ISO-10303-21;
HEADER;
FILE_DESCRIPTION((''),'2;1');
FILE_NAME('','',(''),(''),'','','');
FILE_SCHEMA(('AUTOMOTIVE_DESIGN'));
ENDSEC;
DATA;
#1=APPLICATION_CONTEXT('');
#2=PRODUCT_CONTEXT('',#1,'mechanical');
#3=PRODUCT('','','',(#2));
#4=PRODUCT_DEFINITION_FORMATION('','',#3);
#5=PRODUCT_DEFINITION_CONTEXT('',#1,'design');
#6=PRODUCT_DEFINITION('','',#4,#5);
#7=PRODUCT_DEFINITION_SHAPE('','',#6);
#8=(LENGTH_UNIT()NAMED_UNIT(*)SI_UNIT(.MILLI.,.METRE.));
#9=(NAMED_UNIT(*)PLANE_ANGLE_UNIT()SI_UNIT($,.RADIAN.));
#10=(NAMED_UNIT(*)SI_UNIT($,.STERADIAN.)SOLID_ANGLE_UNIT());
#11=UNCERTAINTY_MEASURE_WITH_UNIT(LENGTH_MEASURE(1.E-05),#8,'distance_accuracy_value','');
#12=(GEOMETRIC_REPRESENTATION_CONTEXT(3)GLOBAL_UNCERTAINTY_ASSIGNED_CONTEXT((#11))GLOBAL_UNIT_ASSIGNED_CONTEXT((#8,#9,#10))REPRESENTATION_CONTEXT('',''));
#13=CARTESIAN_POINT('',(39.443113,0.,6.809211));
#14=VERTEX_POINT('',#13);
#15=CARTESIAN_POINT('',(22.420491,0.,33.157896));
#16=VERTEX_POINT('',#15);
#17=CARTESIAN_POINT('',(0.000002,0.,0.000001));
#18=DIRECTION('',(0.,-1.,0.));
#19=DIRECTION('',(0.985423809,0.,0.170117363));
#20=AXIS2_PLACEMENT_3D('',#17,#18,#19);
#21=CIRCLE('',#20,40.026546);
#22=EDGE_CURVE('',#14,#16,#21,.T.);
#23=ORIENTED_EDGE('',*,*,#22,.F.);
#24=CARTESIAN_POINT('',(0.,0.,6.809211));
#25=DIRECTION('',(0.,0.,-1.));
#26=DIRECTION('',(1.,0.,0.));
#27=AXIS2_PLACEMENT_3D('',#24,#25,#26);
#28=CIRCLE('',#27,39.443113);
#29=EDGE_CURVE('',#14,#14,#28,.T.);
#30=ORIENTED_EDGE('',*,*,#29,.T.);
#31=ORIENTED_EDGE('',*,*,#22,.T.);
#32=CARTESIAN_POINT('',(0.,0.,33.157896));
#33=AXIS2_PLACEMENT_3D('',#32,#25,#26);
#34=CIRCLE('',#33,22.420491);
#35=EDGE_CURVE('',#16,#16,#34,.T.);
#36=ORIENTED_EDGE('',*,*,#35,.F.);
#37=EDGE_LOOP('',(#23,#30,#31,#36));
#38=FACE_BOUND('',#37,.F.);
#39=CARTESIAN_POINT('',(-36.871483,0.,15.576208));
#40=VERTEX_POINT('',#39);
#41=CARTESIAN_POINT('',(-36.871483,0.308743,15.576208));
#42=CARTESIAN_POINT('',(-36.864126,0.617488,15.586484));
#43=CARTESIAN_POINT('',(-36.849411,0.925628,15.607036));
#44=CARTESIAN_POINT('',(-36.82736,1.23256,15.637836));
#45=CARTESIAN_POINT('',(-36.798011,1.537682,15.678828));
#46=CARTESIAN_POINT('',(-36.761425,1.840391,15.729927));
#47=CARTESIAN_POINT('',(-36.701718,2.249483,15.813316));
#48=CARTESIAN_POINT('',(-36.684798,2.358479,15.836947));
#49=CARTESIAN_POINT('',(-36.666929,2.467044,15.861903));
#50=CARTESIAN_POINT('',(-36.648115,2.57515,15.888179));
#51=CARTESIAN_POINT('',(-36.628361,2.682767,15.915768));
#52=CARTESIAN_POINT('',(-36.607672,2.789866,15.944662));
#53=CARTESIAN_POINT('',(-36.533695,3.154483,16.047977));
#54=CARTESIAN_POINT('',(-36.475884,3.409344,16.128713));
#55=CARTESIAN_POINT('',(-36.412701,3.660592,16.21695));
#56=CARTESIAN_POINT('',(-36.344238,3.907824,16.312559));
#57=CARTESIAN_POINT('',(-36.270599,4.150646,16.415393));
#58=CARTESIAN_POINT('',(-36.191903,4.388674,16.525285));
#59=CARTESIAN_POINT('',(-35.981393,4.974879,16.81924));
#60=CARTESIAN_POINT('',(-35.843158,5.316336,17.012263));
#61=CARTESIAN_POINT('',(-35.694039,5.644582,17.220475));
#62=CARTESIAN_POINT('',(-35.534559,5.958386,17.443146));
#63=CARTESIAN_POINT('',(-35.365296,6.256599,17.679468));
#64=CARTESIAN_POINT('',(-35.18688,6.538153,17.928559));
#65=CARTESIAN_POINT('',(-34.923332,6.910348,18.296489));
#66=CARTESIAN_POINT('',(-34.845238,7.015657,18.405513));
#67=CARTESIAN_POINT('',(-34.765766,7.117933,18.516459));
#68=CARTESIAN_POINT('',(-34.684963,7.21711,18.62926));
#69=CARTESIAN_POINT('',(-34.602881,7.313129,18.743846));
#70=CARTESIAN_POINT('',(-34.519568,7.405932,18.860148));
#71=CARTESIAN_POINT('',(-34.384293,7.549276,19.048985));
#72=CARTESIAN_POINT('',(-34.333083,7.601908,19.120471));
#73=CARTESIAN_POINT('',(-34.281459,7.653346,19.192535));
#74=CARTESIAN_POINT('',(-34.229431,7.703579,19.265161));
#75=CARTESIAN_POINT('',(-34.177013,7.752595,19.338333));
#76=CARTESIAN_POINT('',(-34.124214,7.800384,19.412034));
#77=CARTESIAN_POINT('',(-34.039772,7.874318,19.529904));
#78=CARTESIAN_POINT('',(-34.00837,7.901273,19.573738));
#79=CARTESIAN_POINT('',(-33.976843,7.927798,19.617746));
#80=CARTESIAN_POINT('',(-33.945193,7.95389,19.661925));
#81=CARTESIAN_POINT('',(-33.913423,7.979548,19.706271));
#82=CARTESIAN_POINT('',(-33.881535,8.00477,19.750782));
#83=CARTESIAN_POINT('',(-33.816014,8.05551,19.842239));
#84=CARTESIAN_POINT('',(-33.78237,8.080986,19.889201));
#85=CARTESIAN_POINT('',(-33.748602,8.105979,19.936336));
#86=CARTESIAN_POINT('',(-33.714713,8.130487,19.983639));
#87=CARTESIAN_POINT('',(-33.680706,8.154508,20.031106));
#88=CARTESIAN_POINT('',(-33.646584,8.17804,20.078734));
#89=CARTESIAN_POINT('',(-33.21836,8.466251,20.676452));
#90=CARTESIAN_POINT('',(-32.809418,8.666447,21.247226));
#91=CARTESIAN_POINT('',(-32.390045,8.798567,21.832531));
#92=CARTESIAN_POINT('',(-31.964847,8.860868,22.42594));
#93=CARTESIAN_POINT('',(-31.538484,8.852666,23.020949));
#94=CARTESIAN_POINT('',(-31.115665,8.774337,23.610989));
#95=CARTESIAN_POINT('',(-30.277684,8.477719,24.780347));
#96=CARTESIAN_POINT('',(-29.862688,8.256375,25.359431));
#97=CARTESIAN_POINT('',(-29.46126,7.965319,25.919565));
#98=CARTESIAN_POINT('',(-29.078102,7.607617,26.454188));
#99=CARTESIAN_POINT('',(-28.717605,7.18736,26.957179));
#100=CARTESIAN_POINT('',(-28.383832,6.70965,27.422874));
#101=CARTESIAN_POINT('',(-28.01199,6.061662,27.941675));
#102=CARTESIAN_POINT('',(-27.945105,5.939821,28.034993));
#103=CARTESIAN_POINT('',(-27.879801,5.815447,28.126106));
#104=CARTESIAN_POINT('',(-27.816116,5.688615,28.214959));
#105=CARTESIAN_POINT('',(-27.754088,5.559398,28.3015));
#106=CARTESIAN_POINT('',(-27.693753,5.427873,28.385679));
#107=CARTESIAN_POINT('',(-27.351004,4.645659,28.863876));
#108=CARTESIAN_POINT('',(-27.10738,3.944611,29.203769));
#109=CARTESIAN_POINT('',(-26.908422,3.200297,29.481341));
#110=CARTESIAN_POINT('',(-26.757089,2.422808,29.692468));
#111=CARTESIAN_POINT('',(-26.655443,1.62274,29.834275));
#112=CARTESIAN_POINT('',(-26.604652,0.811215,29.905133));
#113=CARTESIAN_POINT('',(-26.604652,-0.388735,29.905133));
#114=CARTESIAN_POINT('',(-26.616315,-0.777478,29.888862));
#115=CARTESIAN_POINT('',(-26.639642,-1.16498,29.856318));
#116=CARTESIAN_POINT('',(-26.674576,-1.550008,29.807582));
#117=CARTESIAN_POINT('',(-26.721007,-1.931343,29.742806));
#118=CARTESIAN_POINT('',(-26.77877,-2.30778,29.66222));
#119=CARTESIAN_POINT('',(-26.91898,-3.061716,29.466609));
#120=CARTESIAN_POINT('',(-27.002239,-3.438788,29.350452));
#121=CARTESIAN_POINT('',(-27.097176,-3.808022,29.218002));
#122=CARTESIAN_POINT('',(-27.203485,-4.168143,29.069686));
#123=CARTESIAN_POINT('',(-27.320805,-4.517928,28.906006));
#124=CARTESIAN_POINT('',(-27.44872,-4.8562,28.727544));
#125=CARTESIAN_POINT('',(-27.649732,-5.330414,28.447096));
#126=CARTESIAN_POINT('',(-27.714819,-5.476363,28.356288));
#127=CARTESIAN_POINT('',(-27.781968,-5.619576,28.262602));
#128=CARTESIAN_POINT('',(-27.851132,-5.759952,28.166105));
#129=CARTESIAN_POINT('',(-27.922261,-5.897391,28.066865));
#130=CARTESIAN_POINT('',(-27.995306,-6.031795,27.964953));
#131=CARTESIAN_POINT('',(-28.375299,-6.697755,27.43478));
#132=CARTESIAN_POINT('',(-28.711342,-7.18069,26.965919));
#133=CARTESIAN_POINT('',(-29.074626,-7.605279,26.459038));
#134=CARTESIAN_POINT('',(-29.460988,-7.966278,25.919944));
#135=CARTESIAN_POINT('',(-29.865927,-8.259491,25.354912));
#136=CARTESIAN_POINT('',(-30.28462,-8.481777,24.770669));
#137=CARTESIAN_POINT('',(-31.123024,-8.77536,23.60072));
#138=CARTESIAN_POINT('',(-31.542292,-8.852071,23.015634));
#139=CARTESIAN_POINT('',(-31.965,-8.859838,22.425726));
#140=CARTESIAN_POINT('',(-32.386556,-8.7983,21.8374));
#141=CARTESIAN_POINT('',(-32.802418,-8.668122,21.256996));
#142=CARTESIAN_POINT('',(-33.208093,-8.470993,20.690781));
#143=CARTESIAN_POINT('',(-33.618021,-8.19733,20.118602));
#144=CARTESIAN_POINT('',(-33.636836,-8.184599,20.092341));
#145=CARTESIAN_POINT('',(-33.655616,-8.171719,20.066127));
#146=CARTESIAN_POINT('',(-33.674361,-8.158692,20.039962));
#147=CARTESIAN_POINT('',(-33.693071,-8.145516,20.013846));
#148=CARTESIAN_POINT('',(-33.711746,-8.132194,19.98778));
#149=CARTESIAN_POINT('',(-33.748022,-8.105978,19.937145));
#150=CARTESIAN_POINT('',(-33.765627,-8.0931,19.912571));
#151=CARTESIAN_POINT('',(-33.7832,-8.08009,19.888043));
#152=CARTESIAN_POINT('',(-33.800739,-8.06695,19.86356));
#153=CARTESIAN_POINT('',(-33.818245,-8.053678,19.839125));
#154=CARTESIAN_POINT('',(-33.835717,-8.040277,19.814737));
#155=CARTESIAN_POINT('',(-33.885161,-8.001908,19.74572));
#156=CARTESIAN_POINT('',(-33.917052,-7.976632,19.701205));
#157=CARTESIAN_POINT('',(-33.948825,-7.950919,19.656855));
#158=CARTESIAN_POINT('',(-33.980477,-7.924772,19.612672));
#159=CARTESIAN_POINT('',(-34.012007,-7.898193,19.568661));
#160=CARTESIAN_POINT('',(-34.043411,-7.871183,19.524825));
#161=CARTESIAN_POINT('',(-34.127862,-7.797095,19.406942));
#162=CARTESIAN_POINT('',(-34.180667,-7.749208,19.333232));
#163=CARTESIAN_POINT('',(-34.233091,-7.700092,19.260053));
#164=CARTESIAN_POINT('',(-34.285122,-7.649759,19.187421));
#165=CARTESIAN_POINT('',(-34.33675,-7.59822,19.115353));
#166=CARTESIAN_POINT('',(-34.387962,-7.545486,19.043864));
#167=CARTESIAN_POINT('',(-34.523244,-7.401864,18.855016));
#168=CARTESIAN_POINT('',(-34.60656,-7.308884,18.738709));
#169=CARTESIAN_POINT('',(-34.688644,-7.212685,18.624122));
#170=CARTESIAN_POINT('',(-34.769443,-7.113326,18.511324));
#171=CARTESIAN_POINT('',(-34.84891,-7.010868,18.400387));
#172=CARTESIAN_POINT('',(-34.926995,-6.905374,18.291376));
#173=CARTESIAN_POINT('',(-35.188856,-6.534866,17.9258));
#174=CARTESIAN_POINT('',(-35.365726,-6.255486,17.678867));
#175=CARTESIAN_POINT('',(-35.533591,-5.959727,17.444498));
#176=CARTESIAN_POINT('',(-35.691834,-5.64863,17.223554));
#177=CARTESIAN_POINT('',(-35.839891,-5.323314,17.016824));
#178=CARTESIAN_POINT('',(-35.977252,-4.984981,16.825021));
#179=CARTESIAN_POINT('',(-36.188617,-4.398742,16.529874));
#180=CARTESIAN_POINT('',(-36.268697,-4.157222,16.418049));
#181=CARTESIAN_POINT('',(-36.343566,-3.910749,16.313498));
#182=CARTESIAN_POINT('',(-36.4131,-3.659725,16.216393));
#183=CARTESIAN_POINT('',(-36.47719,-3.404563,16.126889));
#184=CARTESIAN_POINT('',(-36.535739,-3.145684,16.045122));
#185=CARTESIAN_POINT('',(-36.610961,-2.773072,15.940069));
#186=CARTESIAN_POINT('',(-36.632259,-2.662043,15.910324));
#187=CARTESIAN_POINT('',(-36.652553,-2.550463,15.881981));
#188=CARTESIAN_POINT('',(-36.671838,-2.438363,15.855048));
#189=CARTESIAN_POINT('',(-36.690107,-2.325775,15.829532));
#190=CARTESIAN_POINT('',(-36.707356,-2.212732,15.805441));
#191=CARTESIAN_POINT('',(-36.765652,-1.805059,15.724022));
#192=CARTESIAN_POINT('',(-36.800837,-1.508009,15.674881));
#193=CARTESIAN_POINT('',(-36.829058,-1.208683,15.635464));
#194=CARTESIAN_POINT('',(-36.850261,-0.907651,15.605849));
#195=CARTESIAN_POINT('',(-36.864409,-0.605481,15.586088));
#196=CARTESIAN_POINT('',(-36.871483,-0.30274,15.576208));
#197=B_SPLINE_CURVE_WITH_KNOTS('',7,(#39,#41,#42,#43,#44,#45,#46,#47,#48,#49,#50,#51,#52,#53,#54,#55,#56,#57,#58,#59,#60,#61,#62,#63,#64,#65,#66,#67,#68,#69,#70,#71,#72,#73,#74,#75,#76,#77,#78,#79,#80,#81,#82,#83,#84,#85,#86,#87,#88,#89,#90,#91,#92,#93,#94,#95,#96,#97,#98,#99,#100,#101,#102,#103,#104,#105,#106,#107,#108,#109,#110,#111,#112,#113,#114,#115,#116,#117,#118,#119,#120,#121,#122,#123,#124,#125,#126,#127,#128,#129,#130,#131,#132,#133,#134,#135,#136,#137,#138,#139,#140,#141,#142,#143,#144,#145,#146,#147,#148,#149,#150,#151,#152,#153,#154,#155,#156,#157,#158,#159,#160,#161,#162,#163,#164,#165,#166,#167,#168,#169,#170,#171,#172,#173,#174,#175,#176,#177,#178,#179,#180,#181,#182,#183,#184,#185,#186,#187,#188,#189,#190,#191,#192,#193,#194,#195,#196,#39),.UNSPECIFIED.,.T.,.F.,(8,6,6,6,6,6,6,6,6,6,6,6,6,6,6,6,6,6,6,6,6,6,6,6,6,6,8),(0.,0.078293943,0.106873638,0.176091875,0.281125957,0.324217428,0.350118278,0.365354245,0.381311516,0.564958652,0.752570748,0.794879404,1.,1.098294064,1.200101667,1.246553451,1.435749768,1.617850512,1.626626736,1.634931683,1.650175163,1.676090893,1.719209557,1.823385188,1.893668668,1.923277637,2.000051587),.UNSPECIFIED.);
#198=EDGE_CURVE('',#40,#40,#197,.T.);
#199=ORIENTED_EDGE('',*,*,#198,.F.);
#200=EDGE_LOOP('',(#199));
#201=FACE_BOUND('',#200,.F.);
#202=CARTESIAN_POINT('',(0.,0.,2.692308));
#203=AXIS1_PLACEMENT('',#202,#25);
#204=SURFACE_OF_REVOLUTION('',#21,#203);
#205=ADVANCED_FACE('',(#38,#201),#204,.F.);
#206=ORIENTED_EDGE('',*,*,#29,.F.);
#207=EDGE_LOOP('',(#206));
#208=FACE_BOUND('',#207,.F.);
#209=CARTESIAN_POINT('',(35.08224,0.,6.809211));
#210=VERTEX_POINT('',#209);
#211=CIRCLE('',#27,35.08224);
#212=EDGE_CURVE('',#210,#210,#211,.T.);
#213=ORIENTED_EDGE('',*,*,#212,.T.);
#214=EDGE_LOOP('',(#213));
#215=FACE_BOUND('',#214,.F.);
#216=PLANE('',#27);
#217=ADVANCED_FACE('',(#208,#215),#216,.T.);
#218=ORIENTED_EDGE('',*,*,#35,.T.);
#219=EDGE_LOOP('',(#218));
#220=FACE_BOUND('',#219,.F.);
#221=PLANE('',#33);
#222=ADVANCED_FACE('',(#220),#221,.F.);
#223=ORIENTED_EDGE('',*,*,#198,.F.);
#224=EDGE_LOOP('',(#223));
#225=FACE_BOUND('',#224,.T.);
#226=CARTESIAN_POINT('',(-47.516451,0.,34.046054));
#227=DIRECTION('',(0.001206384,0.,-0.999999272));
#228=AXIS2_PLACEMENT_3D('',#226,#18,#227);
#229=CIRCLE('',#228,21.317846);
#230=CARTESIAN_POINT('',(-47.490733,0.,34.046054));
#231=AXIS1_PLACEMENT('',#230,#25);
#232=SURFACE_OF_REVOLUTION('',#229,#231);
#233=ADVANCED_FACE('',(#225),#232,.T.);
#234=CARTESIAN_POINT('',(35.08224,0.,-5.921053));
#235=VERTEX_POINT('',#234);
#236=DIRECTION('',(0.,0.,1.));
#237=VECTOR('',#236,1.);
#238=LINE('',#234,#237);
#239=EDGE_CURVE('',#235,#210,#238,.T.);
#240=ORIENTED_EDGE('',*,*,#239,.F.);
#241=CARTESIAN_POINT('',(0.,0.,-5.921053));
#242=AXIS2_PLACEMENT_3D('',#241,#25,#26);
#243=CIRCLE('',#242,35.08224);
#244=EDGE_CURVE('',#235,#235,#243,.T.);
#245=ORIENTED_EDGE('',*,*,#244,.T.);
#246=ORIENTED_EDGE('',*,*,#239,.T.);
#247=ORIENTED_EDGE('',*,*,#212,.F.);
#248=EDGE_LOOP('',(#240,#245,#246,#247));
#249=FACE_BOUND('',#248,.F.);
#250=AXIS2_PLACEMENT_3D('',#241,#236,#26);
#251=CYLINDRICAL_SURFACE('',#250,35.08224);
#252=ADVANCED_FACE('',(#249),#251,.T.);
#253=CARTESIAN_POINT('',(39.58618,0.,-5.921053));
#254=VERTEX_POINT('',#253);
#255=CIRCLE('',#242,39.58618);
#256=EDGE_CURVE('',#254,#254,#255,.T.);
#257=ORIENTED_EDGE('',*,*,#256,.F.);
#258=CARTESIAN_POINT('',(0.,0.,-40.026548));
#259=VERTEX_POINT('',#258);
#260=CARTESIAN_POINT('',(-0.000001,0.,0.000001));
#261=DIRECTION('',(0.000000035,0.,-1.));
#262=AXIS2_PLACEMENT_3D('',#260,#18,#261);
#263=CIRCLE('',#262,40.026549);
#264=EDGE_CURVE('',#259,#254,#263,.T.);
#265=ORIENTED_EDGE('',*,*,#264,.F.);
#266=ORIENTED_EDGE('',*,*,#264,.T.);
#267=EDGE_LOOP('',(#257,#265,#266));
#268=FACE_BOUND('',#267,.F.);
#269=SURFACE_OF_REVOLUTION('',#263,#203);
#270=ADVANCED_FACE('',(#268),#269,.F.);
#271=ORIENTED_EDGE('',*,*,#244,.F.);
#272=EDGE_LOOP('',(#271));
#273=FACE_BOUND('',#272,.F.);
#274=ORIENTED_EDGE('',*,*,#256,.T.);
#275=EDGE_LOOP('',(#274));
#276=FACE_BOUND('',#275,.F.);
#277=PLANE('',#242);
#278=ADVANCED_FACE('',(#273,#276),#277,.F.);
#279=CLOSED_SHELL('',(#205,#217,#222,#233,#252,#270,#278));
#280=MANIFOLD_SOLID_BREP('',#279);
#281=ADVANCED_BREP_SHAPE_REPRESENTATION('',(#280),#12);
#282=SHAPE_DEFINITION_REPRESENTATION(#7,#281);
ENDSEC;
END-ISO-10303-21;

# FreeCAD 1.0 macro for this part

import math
import FreeCAD as App
import Part
import Sketcher
from FreeCAD import Vector
Q = App.Units.Quantity

doc = App.newDocument("Part")
params = doc.addObject("Spreadsheet::Sheet", "Params")
for row, (alias, value) in enumerate([
    ("revolution_angle", "360 deg"),
    ("groove_angle", "360 deg"),
], start=1):
    params.set(f"A{row}", alias)
    params.set(f"B{row}", "=" + value)
    params.setAlias(f"B{row}", alias)

body = doc.addObject("PartDesign::Body", "Body")

# Sketch on XZ plane
sketch1 = body.newObject("Sketcher::SketchObject", "Sketch")
sketch1.AttachmentSupport = (doc.getObject("XZ_Plane"), [""])
sketch1.MapMode = "FlatFace"
sketch1.addGeometry(Part.LineSegment(Vector(0, 33.157896, 0), Vector(0, -40.026548, 0)), False)
sketch1.addGeometry(Part.ArcOfCircle(Part.Circle(Vector(-0.000001, 0.000001, 0), Vector(0, 0, 1), 40.026549), math.radians(-89.999998), math.radians(-8.50688)), False)
sketch1.addGeometry(Part.LineSegment(Vector(39.58618, -5.921053, 0), Vector(35.08224, -5.921053, 0)), False)
sketch1.addGeometry(Part.LineSegment(Vector(35.08224, -5.921053, 0), Vector(35.08224, 6.809211, 0)), False)
sketch1.addGeometry(Part.LineSegment(Vector(35.08224, 6.809211, 0), Vector(39.443113, 6.809211, 0)), False)
sketch1.addGeometry(Part.ArcOfCircle(Part.Circle(Vector(0.000002, 0.000001, 0), Vector(0, 0, 1), 40.026546), math.radians(9.794643), math.radians(55.934486)), False)
sketch1.addGeometry(Part.LineSegment(Vector(22.420491, 33.157896, 0), Vector(0, 33.157896, 0)), False)
sketch1.addConstraint(Sketcher.Constraint("Coincident", 0, 2, 1, 1))
sketch1.addConstraint(Sketcher.Constraint("Coincident", 1, 2, 2, 1))
sketch1.addConstraint(Sketcher.Constraint("Coincident", 2, 2, 3, 1))
sketch1.addConstraint(Sketcher.Constraint("Coincident", 3, 2, 4, 1))
sketch1.addConstraint(Sketcher.Constraint("Coincident", 4, 2, 5, 1))
sketch1.addConstraint(Sketcher.Constraint("Coincident", 5, 2, 6, 1))
sketch1.addConstraint(Sketcher.Constraint("Coincident", 6, 2, 0, 1))
sketch1.addConstraint(Sketcher.Constraint("Vertical", 0))
sketch1.addConstraint(Sketcher.Constraint("Horizontal", 2))
sketch1.addConstraint(Sketcher.Constraint("Vertical", 3))
sketch1.addConstraint(Sketcher.Constraint("Horizontal", 4))
sketch1.addConstraint(Sketcher.Constraint("Horizontal", 6))
sketch1.addConstraint(Sketcher.Constraint("Coincident", 1, 3, -1, 1))
sketch1.addConstraint(Sketcher.Constraint("Coincident", 5, 3, -1, 1))
sketch1.addConstraint(Sketcher.Constraint("PointOnObject", 0, 2, -2))
sketch1.addConstraint(Sketcher.Constraint("Radius", 1, Q("40.026549 mm")))
sketch1.addConstraint(Sketcher.Constraint("Radius", 5, Q("40.026546 mm")))
sketch1.addConstraint(Sketcher.Constraint("DistanceX", 2, 2, 2, 1, Q("4.50394 mm")))
sketch1.addConstraint(Sketcher.Constraint("DistanceX", 6, 2, 6, 1, Q("22.420491 mm")))
sketch1.addConstraint(Sketcher.Constraint("DistanceX", 4, 1, 4, 2, Q("4.360873 mm")))
sketch1.addConstraint(Sketcher.Constraint("DistanceY", 3, 1, 3, 2, Q("12.730264 mm")))
revolution = body.newObject("PartDesign::Revolution", "Revolution")
revolution.Profile = sketch1
revolution.ReferenceAxis = (sketch1, ["V_Axis"])
revolution.setExpression("Angle", "Params.revolution_angle")

# Sketch on XZ plane
sketch2 = body.newObject("Sketcher::SketchObject", "Sketch001")
sketch2.AttachmentSupport = (doc.getObject("XZ_Plane"), [""])
sketch2.MapMode = "FlatFace"
sketch2.addGeometry(Part.LineSegment(Vector(-47.490733, 55.363884, 0), Vector(-47.490733, 12.728224, 0)), False)
sketch2.addGeometry(Part.ArcOfCircle(Part.Circle(Vector(-47.516451, 34.046054, 0), Vector(0, 0, 1), 21.317846), math.radians(-89.930879), math.radians(89.930879)), False)
sketch2.addGeometry(Part.LineSegment(Vector(-47.490733, 55.363884, 0), Vector(-47.490733, 12.728224, 0)), True)  # axis
sketch2.addConstraint(Sketcher.Constraint("Coincident", 0, 1, 1, 2))
sketch2.addConstraint(Sketcher.Constraint("Coincident", 1, 1, 0, 2))
sketch2.addConstraint(Sketcher.Constraint("Vertical", 0))
sketch2.addConstraint(Sketcher.Constraint("Vertical", 2))
sketch2.addConstraint(Sketcher.Constraint("Coincident", 2, 1, 0, 1))
sketch2.addConstraint(Sketcher.Constraint("Equal", 0, 2))
sketch2.addConstraint(Sketcher.Constraint("Radius", 1, Q("21.317846 mm")))
sketch2.addConstraint(Sketcher.Constraint("DistanceX", 1, 3, -1, 1, Q("47.516451 mm")))
sketch2.addConstraint(Sketcher.Constraint("DistanceY", -1, 1, 1, 3, Q("34.046054 mm")))
sketch2.addConstraint(Sketcher.Constraint("DistanceX", 0, 1, -1, 1, Q("47.490733 mm")))
groove = body.newObject("PartDesign::Groove", "Groove")
groove.Profile = sketch2
groove.ReferenceAxis = (sketch2, ["Axis0"])
groove.setExpression("Angle", "Params.groove_angle")

doc.recompute()
